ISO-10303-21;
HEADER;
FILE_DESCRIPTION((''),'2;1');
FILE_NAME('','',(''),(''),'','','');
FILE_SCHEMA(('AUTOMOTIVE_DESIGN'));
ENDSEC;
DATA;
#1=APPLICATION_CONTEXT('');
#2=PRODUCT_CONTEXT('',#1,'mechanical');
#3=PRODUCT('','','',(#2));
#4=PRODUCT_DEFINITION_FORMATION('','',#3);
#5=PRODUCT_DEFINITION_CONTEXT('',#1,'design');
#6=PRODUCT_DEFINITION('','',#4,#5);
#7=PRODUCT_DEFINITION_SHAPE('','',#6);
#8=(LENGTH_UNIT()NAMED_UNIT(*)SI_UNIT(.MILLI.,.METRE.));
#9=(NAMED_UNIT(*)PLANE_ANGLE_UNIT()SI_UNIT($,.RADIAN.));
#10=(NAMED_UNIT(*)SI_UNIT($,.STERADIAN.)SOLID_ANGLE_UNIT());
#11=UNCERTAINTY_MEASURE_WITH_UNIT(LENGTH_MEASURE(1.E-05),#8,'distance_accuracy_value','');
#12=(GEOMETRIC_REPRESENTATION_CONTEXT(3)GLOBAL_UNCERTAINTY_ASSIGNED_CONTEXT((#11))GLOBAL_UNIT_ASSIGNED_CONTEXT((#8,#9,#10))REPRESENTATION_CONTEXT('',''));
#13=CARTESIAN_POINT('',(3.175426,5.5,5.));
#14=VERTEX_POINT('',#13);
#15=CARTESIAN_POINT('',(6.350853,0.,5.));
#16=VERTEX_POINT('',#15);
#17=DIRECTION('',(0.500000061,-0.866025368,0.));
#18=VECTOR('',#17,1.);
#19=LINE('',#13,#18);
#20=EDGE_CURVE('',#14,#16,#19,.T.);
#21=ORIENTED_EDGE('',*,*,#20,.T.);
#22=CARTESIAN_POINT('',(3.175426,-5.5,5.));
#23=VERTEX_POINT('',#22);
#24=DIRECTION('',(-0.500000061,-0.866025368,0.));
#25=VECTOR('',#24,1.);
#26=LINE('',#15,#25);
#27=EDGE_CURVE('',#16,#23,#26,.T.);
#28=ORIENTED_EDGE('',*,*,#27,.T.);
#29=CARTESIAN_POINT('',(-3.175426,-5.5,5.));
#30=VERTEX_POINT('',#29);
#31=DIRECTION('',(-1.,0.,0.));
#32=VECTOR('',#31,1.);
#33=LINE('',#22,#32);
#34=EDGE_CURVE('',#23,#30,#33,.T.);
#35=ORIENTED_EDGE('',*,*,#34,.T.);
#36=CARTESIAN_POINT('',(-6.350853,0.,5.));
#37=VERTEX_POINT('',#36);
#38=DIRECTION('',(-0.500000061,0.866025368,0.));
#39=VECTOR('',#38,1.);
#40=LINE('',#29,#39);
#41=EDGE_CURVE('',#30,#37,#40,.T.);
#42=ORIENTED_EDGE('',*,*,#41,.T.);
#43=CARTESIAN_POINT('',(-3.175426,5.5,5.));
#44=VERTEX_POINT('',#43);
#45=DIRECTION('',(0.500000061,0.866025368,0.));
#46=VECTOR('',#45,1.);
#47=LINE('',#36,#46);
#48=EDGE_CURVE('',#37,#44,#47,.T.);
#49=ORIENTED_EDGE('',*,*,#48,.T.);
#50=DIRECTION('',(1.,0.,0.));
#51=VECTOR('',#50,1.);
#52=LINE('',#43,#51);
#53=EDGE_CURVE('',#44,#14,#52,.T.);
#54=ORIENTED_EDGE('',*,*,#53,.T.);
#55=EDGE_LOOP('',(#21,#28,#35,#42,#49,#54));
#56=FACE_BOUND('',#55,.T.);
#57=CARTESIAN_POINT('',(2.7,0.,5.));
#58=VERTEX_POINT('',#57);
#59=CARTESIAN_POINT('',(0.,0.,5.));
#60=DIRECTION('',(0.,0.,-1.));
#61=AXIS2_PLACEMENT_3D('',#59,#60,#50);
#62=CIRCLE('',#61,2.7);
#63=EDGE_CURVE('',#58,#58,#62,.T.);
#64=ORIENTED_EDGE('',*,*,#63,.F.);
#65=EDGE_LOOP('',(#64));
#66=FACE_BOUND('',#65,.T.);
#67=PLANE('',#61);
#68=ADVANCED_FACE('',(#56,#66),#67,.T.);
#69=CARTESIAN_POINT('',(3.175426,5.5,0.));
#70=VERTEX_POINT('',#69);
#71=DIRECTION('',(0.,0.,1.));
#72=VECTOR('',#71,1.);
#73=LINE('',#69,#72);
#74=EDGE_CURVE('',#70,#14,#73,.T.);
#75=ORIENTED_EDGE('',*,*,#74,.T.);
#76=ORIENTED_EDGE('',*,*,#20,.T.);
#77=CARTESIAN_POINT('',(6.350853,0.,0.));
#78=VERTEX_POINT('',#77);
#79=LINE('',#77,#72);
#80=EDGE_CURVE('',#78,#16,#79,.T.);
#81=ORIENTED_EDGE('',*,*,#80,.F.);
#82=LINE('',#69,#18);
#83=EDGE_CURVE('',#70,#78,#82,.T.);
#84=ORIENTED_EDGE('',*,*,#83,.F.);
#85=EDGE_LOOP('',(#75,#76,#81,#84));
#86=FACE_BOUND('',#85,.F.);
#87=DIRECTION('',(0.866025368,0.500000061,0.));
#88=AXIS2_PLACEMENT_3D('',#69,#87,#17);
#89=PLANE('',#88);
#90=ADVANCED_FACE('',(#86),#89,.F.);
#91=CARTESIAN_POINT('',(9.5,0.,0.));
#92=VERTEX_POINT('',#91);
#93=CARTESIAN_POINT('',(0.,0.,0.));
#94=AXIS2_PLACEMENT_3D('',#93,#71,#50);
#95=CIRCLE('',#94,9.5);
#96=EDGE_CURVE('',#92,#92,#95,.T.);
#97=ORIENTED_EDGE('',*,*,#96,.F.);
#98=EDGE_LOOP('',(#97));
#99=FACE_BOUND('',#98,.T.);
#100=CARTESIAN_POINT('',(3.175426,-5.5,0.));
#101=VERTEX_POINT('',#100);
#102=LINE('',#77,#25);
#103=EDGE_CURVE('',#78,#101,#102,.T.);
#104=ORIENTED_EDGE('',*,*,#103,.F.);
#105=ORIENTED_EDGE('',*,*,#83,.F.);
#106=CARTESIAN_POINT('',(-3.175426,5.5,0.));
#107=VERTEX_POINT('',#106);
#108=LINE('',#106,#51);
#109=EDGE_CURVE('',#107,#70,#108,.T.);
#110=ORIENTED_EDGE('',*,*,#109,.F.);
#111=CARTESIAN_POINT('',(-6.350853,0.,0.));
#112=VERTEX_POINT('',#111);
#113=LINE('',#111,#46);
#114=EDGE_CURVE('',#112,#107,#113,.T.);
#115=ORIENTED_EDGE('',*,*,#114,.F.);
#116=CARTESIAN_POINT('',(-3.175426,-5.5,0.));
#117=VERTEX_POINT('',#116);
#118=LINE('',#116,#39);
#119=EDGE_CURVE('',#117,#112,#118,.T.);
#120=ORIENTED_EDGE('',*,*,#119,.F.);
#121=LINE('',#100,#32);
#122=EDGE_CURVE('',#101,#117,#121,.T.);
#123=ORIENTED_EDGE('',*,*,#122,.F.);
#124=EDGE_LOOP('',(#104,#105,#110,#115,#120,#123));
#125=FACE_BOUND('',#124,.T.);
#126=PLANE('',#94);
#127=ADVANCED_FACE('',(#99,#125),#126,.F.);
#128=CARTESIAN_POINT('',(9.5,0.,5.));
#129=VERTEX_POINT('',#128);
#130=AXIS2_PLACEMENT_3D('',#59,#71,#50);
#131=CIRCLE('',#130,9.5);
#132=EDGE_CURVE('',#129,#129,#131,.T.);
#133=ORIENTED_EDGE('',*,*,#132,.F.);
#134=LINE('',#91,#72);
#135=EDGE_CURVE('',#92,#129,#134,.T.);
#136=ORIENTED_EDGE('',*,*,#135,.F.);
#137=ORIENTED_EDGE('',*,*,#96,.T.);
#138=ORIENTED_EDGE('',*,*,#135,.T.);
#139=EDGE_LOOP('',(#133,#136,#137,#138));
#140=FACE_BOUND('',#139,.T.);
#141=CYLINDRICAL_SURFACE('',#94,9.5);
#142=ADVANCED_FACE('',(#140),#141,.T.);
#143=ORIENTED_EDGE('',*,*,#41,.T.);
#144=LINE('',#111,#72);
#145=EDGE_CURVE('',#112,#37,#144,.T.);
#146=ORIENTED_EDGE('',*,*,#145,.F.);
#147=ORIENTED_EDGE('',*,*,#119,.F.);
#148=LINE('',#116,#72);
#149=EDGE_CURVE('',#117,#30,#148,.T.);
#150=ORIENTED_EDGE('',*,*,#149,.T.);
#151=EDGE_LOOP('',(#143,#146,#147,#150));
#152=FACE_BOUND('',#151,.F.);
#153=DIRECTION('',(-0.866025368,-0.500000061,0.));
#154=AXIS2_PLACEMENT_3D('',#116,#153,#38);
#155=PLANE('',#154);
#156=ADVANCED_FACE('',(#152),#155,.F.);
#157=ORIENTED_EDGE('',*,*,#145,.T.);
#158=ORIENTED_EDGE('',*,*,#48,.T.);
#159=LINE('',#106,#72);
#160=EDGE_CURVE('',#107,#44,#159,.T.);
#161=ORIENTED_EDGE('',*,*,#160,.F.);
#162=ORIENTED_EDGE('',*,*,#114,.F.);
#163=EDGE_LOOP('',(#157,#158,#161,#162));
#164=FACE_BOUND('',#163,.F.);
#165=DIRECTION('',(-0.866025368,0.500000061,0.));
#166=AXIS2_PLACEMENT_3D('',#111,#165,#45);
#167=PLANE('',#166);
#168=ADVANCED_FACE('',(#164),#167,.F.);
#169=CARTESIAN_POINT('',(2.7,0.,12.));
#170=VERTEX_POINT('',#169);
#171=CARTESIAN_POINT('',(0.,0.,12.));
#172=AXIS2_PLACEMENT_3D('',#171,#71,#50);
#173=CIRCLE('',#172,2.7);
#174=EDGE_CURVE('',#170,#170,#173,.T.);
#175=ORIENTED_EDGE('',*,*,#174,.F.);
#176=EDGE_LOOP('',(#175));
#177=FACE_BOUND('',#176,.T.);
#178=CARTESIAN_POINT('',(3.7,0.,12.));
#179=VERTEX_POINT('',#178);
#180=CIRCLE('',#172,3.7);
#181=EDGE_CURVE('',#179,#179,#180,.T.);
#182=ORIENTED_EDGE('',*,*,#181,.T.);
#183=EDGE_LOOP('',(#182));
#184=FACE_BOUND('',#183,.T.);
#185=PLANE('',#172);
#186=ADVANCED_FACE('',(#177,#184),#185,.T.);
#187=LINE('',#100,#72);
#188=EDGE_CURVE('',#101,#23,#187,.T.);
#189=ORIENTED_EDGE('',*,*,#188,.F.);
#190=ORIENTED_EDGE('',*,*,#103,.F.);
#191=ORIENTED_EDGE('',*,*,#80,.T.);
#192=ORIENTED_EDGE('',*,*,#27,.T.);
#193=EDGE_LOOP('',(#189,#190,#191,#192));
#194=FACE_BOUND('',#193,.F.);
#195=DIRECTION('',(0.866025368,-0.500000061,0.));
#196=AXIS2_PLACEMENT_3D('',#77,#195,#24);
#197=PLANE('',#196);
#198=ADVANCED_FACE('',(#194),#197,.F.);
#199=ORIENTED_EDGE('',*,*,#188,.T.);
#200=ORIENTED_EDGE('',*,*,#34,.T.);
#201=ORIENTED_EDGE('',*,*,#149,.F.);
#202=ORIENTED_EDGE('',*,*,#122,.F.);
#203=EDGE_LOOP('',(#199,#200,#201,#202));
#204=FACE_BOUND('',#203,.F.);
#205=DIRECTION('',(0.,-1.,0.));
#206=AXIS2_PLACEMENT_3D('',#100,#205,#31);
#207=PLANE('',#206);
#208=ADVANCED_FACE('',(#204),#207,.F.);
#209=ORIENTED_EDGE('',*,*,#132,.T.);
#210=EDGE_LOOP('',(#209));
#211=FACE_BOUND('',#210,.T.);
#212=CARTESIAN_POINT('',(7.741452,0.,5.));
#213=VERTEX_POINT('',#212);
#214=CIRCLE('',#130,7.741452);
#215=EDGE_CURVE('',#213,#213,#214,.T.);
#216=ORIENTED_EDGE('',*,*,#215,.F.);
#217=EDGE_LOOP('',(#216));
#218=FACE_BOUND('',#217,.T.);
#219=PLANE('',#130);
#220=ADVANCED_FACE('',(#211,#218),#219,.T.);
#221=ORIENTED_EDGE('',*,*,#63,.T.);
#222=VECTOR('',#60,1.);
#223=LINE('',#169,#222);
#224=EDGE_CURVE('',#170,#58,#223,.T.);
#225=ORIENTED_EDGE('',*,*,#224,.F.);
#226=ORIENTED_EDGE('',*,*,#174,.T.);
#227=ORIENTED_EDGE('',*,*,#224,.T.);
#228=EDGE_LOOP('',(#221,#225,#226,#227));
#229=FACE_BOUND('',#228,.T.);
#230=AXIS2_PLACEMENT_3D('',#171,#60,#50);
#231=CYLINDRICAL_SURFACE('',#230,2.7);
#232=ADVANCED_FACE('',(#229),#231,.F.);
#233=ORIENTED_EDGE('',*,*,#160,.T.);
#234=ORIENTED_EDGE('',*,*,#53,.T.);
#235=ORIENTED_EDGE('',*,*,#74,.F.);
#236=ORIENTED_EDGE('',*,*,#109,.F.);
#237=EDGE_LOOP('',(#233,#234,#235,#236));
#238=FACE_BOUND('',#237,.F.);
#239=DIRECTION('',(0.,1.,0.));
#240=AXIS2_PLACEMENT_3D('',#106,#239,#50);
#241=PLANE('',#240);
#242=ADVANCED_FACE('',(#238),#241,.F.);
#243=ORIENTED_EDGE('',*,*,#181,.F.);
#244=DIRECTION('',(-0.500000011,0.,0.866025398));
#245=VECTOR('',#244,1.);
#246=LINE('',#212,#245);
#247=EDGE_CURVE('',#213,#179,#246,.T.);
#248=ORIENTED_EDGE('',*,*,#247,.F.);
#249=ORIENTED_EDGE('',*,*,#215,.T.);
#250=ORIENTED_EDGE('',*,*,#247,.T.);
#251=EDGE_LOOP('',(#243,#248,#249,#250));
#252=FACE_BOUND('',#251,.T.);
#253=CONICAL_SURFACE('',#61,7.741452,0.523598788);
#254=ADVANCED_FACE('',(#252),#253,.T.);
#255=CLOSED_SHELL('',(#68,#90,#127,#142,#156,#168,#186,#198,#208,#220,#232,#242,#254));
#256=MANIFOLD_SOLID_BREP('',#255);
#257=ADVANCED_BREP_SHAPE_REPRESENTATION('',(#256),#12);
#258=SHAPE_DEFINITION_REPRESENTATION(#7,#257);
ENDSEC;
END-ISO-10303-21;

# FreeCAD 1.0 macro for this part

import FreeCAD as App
import Part
import Sketcher
from FreeCAD import Vector
Q = App.Units.Quantity


def add_polygon(sketch, points):
    """Adds a closed chain of lines whose ends are joined by coincident constraints."""
    first, n = sketch.GeometryCount, len(points)
    for a, b in zip(points, points[1:] + points[:1]):
        sketch.addGeometry(Part.LineSegment(App.Vector(*a, 0), App.Vector(*b, 0)), False)
    for i in range(n):
        sketch.addConstraint(Sketcher.Constraint("Coincident", first + i, 2, first + (i + 1) % n, 1))

doc = App.newDocument("Part")
body = doc.addObject("PartDesign::Body", "Body")

# Sketch on XZ plane
sketch1 = body.newObject("Sketcher::SketchObject", "Sketch")
sketch1.AttachmentSupport = (doc.getObject("XZ_Plane"), [""])
sketch1.MapMode = "FlatFace"
add_polygon(sketch1, [(2.7, 12), (2.7, 0), (9.5, 0), (9.5, 5), (7.7, 5), (3.7, 12)])  # lines 0-5
sketch1.addConstraint([
    Sketcher.Constraint("Vertical", 0),
    Sketcher.Constraint("Horizontal", 1),
    Sketcher.Constraint("Vertical", 2),
    Sketcher.Constraint("Horizontal", 3),
    Sketcher.Constraint("Horizontal", 5),
    Sketcher.Constraint("PointOnObject", 0, 2, -1),
    Sketcher.Constraint("DistanceX", 5, 2, 5, 1, 1.0),
    Sketcher.Constraint("DistanceY", 0, 2, 0, 1, 12.0),
    Sketcher.Constraint("DistanceY", 2, 1, 2, 2, 5.0),
    Sketcher.Constraint("Angle", 4, Q("120.000001 deg")),
    Sketcher.Constraint("DistanceX", 1, 1, 1, 2, 6.8),
    Sketcher.Constraint("DistanceX", -1, 1, 0, 2, 2.7),
])
revolution = body.newObject("PartDesign::Revolution", "Revolution")
revolution.Profile = sketch1
revolution.ReferenceAxis = (sketch1, ["V_Axis"])
revolution.Angle = 360

# Sketch on XY plane
sketch2 = body.newObject("Sketcher::SketchObject", "Sketch001")
sketch2.AttachmentSupport = (doc.getObject("XY_Plane"), [""])
sketch2.MapMode = "FlatFace"
add_polygon(sketch2, [(3, 6), (6, 0), (3, -6), (-3, -6), (-6, 0), (-3, 6)])  # lines 0-5
sketch2.addConstraint([
    Sketcher.Constraint("Horizontal", 2),
    Sketcher.Constraint("Horizontal", 5),
    Sketcher.Constraint("Symmetric", 0, 2, 3, 2, -1, 1),
    Sketcher.Constraint("Symmetric", 1, 2, 4, 2, -1, 1),
    Sketcher.Constraint("PointOnObject", 0, 2, -1),
    Sketcher.Constraint("Parallel", 0, 3),
    Sketcher.Constraint("Vertical", 2, 2, 4, 2),
    Sketcher.Constraint("Angle", 0, Q("-59.999996 deg")),
    Sketcher.Constraint("DistanceY", 2, 2, 4, 2, 11.0),
    Sketcher.Constraint("DistanceX", 2, 2, 2, 1, 6.350852),
])
pocket1 = body.newObject("PartDesign::Pocket", "Pocket")
pocket1.Profile = sketch2
pocket1.Length = 5
pocket1.Reversed = True

doc.recompute()
